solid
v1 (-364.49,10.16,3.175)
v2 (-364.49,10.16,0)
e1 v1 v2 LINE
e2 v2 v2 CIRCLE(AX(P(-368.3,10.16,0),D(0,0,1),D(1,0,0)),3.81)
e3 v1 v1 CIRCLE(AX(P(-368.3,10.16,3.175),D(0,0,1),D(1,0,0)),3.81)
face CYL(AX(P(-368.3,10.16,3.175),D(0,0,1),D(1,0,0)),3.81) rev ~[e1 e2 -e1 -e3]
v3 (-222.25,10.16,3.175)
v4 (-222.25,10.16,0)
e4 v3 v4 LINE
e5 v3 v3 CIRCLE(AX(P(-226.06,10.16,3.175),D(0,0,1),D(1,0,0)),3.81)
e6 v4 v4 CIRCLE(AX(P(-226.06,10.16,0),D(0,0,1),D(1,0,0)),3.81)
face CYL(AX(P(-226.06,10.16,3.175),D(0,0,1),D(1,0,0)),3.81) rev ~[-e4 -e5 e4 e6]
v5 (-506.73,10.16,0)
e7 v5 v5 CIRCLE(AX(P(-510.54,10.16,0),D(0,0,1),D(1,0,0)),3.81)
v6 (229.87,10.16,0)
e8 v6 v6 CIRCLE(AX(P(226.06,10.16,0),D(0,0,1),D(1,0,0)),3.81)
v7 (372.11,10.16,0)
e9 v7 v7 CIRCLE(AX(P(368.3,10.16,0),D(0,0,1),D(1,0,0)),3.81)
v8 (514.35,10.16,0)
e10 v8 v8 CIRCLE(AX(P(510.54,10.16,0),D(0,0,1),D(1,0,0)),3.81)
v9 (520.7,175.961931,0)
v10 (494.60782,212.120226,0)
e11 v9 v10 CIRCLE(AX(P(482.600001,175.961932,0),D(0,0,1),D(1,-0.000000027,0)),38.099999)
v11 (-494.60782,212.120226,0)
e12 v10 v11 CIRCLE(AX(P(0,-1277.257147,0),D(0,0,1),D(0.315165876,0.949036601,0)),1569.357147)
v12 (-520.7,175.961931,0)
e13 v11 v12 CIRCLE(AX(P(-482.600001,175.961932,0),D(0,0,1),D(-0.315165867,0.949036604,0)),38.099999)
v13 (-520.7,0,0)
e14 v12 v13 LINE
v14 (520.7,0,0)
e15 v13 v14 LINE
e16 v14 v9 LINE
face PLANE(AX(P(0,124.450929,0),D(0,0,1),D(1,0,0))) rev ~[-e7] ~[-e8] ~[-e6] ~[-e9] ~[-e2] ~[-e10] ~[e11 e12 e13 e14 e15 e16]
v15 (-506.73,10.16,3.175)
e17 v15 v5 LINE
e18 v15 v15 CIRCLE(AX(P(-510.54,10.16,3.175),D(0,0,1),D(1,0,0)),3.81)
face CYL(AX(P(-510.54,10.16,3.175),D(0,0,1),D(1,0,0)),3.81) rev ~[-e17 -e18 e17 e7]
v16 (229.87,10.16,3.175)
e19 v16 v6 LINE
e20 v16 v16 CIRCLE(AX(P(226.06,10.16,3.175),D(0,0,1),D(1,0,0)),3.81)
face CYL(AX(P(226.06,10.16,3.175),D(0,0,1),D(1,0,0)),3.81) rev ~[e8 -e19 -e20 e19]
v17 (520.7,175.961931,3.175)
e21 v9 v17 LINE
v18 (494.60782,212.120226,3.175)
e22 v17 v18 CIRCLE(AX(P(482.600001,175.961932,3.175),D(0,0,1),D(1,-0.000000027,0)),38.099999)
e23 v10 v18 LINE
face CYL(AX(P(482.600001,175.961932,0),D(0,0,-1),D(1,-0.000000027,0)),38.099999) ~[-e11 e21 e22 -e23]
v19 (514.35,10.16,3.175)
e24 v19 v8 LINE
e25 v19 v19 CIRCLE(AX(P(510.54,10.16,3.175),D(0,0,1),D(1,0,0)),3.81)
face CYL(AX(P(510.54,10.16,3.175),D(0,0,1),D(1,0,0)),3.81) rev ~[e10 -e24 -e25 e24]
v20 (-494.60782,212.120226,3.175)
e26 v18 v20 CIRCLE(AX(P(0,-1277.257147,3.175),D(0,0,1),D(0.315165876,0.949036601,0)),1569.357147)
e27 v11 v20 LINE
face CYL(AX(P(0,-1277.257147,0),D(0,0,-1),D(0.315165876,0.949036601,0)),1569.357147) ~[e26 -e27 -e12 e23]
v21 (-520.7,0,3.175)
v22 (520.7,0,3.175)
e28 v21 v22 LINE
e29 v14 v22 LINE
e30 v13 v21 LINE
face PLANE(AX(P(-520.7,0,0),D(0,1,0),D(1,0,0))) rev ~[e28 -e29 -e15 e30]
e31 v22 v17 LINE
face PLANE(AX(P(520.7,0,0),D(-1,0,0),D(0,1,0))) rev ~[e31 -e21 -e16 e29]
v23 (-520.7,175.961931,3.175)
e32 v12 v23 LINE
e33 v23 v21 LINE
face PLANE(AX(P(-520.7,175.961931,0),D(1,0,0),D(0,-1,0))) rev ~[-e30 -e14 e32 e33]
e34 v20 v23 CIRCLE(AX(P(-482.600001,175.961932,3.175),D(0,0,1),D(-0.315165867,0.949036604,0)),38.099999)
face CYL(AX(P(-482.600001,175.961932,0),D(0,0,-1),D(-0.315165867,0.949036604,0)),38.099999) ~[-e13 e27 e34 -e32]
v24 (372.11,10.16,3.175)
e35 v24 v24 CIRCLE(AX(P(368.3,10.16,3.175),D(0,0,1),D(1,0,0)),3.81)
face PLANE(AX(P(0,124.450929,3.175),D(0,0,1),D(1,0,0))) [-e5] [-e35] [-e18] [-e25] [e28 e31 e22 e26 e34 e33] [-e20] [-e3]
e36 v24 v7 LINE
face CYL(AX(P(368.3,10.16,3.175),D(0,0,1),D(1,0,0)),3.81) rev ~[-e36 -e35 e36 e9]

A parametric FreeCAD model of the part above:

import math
import FreeCAD as App
import Part
import Sketcher

V = App.Vector
Q = App.Units.Quantity

doc = App.newDocument("Part")
body = doc.addObject("PartDesign::Body", "Body")

# Sketch on XY plane
sketch1 = body.newObject("Sketcher::SketchObject", "Sketch")
sketch1.AttachmentSupport = (doc.getObject("XY_Plane"), [""])
sketch1.MapMode = "FlatFace"
sketch1.addGeometry(Part.LineSegment(V(521, 0, 0), V(521, 176, 0)), False)
sketch1.addGeometry(Part.ArcOfCircle(Part.Circle(V(483, 176, 0), V(0, 0, 1), 38), math.radians(0), math.radians(72)), False)
sketch1.addGeometry(Part.ArcOfCircle(Part.Circle(V(0, -1277, 0), V(0, 0, 1), 1569), math.radians(72), math.radians(108)), False)
sketch1.addGeometry(Part.ArcOfCircle(Part.Circle(V(-483, 176, 0), V(0, 0, 1), 38), math.radians(108), math.radians(180)), False)
sketch1.addGeometry(Part.LineSegment(V(-521, 176, 0), V(-521, 0, 0)), False)
sketch1.addGeometry(Part.LineSegment(V(-521, 0, 0), V(521, 0, 0)), False)
sketch1.addConstraint(Sketcher.Constraint("Tangent", 0, 2, 1, 1))
sketch1.addConstraint(Sketcher.Constraint("Tangent", 1, 2, 2, 1))
sketch1.addConstraint(Sketcher.Constraint("Tangent", 2, 2, 3, 1))
sketch1.addConstraint(Sketcher.Constraint("Tangent", 3, 2, 4, 1))
sketch1.addConstraint(Sketcher.Constraint("Coincident", 4, 2, 5, 1))
sketch1.addConstraint(Sketcher.Constraint("Coincident", 5, 2, 0, 1))
sketch1.addConstraint(Sketcher.Constraint("Vertical", 0))
sketch1.addConstraint(Sketcher.Constraint("Vertical", 4))
sketch1.addConstraint(Sketcher.Constraint("Horizontal", 5))
sketch1.addConstraint(Sketcher.Constraint("Equal", 1, 3))
sketch1.addConstraint(Sketcher.Constraint("Symmetric", 4, 2, 5, 2, -1, 1))
sketch1.addConstraint(Sketcher.Constraint("PointOnObject", 2, 3, -2))
sketch1.addConstraint(Sketcher.Constraint("Radius", 1, Q("1.5 in")))
sketch1.addConstraint(Sketcher.Constraint("DistanceX", 5, 1, 5, 2, Q("41 in")))
sketch1.addConstraint(Sketcher.Constraint("Radius", 2, Q("1569.357147 mm")))
sketch1.addConstraint(Sketcher.Constraint("DistanceY", 0, 1, 0, 2, Q("175.961931 mm")))
pad1 = body.newObject("PartDesign::Pad", "Pad")
pad1.Profile = sketch1
pad1.Length = Q("0.125 in")

# Sketch on XY plane
sketch2 = body.newObject("Sketcher::SketchObject", "Sketch001")
sketch2.AttachmentSupport = (doc.getObject("XY_Plane"), [""])
sketch2.MapMode = "FlatFace"
sketch2.AttachmentOffset = App.Placement(V(0, 0, 0.125 * 25.4), App.Rotation())
sketch2.addGeometry(Part.Circle(V(510.5, 10.2, 0), V(0, 0, 1), 3.8), False)
sketch2.addGeometry(Part.Circle(V(368.3, 10.2, 0), V(0, 0, 1), 3.8), False)
sketch2.addGeometry(Part.Circle(V(226.1, 10.2, 0), V(0, 0, 1), 3.8), False)
sketch2.addGeometry(Part.Circle(V(-226.1, 10.2, 0), V(0, 0, 1), 3.8), False)
sketch2.addGeometry(Part.Circle(V(-368.3, 10.2, 0), V(0, 0, 1), 3.8), False)
sketch2.addGeometry(Part.Circle(V(-510.5, 10.2, 0), V(0, 0, 1), 3.8), False)
sketch2.addConstraint(Sketcher.Constraint("Equal", 0, 1))
sketch2.addConstraint(Sketcher.Constraint("Equal", 1, 2))
sketch2.addConstraint(Sketcher.Constraint("Equal", 2, 3))
sketch2.addConstraint(Sketcher.Constraint("Equal", 3, 4))
sketch2.addConstraint(Sketcher.Constraint("Equal", 4, 5))
sketch2.addConstraint(Sketcher.Constraint("Symmetric", 2, 3, 3, 3, -2))
sketch2.addConstraint(Sketcher.Constraint("Symmetric", 1, 3, 4, 3, -2))
sketch2.addConstraint(Sketcher.Constraint("Symmetric", 0, 3, 5, 3, -2))
sketch2.addConstraint(Sketcher.Constraint("Horizontal", 0, 3, 1, 3))
sketch2.addConstraint(Sketcher.Constraint("Horizontal", 1, 3, 2, 3))
sketch2.addConstraint(Sketcher.Constraint("Diameter", 0, Q("0.3 in")))
sketch2.addConstraint(Sketcher.Constraint("DistanceX", 3, 3, 0, 3, Q("29 in")))
sketch2.addConstraint(Sketcher.Constraint("DistanceX", 4, 3, 1, 3, Q("29 in")))
sketch2.addConstraint(Sketcher.Constraint("DistanceX", -1, 1, 0, 3, Q("20.1 in")))
sketch2.addConstraint(Sketcher.Constraint("DistanceY", -1, 1, 0, 3, Q("0.4 in")))
pocket1 = body.newObject("PartDesign::Pocket", "Pocket")
pocket1.Profile = sketch2
pocket1.Length = Q("1 in")

doc.recompute()
